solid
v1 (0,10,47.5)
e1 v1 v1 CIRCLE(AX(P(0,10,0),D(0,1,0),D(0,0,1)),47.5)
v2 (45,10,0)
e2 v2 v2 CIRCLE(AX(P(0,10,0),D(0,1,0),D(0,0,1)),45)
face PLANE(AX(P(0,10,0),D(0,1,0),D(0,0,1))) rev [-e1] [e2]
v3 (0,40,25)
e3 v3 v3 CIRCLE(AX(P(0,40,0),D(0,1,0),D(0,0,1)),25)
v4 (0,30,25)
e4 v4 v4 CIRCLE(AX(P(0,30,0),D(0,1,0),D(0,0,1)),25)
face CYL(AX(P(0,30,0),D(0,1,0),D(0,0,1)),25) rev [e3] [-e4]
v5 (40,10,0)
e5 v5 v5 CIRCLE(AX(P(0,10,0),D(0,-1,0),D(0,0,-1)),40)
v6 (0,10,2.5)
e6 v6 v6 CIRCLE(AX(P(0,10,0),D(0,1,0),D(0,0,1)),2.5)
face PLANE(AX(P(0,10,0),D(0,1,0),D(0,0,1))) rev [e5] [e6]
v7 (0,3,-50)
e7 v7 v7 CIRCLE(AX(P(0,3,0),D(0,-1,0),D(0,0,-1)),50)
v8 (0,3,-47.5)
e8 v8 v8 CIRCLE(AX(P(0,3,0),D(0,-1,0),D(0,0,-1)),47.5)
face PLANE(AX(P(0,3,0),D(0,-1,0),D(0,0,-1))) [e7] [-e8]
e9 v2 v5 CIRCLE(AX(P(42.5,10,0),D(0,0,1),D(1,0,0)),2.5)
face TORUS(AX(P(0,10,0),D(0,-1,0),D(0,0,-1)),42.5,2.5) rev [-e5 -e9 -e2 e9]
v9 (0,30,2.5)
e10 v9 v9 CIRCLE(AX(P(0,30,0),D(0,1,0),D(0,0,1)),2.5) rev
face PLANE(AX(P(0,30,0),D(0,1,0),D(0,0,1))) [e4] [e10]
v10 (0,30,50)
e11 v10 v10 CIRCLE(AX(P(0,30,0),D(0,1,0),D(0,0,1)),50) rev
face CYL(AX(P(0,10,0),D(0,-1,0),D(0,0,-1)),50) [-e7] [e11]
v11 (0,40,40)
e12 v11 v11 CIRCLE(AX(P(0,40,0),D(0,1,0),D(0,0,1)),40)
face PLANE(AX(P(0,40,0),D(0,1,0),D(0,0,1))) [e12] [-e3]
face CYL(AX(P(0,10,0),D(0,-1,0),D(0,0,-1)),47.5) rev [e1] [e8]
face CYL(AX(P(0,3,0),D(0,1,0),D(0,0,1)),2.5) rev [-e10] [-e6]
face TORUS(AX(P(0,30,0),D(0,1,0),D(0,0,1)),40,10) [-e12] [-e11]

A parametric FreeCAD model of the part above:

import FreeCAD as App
import Part
import Sketcher

V = App.Vector
Q = App.Units.Quantity


def edges_at(feature, points):
    """Names of the edges that pass closest to the given points."""
    edges = feature.Shape.Edges
    near = lambda p: min(range(len(edges)), key=lambda i: edges[i].distToShape(Part.Vertex(*p))[0])
    return sorted({f"Edge{near(p) + 1}" for p in points})

doc = App.newDocument("Part")
body = doc.addObject("PartDesign::Body", "Body")

# Sketch on XZ plane
sketch1 = body.newObject("Sketcher::SketchObject", "Sketch")
sketch1.AttachmentSupport = (doc.getObject("XZ_Plane"), [""])
sketch1.MapMode = "FlatFace"
sketch1.addGeometry(Part.Circle(V(0, 0, 0), V(0, 0, 1), 50), False)
sketch1.addGeometry(Part.Circle(V(0, 0, 0), V(0, 0, 1), 48), False)
sketch1.addConstraint(Sketcher.Constraint("Coincident", 0, 3, -1, 1))
sketch1.addConstraint(Sketcher.Constraint("Coincident", 1, 3, -1, 1))
sketch1.addConstraint(Sketcher.Constraint("Diameter", 0, Q("100 mm")))
sketch1.addConstraint(Sketcher.Constraint("Diameter", 1, Q("95 mm")))
pad1 = body.newObject("PartDesign::Pad", "Pad")
pad1.Profile = sketch1
pad1.Length = 10
pad1.Reversed = True

# Sketch on XZ plane
sketch2 = body.newObject("Sketcher::SketchObject", "Sketch001")
sketch2.AttachmentSupport = (doc.getObject("XZ_Plane"), [""])
sketch2.MapMode = "FlatFace"
sketch2.AttachmentOffset = App.Placement(V(0, 0, -10), App.Rotation())
sketch2.addGeometry(Part.Circle(V(0, 0, 0), V(0, 0, 1), 50), False)
sketch2.addConstraint(Sketcher.Constraint("Coincident", 0, 3, -1, 1))
sketch2.addConstraint(Sketcher.Constraint("Diameter", 0, Q("100 mm")))
pad2 = body.newObject("PartDesign::Pad", "Pad001")
pad2.Profile = sketch2
pad2.Length = 30
pad2.Reversed = True

# Sketch on XY plane
sketch3 = body.newObject("Sketcher::SketchObject", "Sketch002")
sketch3.AttachmentSupport = (doc.getObject("XY_Plane"), [""])
sketch3.MapMode = "FlatFace"
sketch3.addGeometry(Part.Circle(V(42.5, 10, 0), V(0, 0, 1), 2.5), False)
sketch3.addConstraint(Sketcher.Constraint("Diameter", 0, Q("5 mm")))
sketch3.addConstraint(Sketcher.Constraint("DistanceY", -1, 1, 0, 3, Q("10 mm")))
sketch3.addConstraint(Sketcher.Constraint("DistanceX", -1, 1, 0, 3, Q("42.5 mm")))

# Sketch on XZ plane
sketch4 = body.newObject("Sketcher::SketchObject", "Sketch003")
sketch4.AttachmentSupport = (doc.getObject("XZ_Plane"), [""])
sketch4.MapMode = "FlatFace"
sketch4.AttachmentOffset = App.Placement(V(0, 0, -10), App.Rotation())
sketch4.addGeometry(Part.Circle(V(0, 0, 0), V(0, 0, 1), 42), False)
sketch4.addConstraint(Sketcher.Constraint("Coincident", 0, 3, -1, 1))
sketch4.addConstraint(Sketcher.Constraint("Diameter", 0, Q("85 mm")))
doc.recompute()

subtractivepipe = body.newObject("PartDesign::SubtractivePipe", "SubtractivePipe")
subtractivepipe.Profile = sketch3
subtractivepipe.Spine = (sketch4, ["Edge1"])

# Sketch on XZ plane
sketch5 = body.newObject("Sketcher::SketchObject", "Sketch004")
sketch5.AttachmentSupport = (doc.getObject("XZ_Plane"), [""])
sketch5.MapMode = "FlatFace"
sketch5.addGeometry(Part.Circle(V(0, 0, 0), V(0, 0, 1), 50), False)
sketch5.addConstraint(Sketcher.Constraint("Coincident", 0, 3, -1, 1))
sketch5.addConstraint(Sketcher.Constraint("Diameter", 0, Q("100 mm")))
pocket1 = body.newObject("PartDesign::Pocket", "Pocket")
pocket1.Profile = sketch5
pocket1.Length = 3

# Sketch on XZ plane
sketch6 = body.newObject("Sketcher::SketchObject", "Sketch005")
sketch6.AttachmentSupport = (doc.getObject("XZ_Plane"), [""])
sketch6.MapMode = "FlatFace"
sketch6.AttachmentOffset = App.Placement(V(0, 0, -40), App.Rotation())
sketch6.addGeometry(Part.Circle(V(0, 0, 0), V(0, 0, 1), 2.5), False)
sketch6.addConstraint(Sketcher.Constraint("Coincident", 0, 3, -1, 1))
sketch6.addConstraint(Sketcher.Constraint("Diameter", 0, Q("5 mm")))
pocket2 = body.newObject("PartDesign::Pocket", "Pocket001")
pocket2.Profile = sketch6
pocket2.Type = "ThroughAll"
pocket2.Midplane = True
doc.recompute()

fillet = body.newObject("PartDesign::Fillet", "Fillet")
fillet.Base = (pocket2, edges_at(pocket2, [(0, 40, -50)]))
fillet.Radius = 10

# Sketch on XZ plane
sketch7 = body.newObject("Sketcher::SketchObject", "Sketch006")
sketch7.AttachmentSupport = (doc.getObject("XZ_Plane"), [""])
sketch7.MapMode = "FlatFace"
sketch7.AttachmentOffset = App.Placement(V(0, 0, -40), App.Rotation())
sketch7.addGeometry(Part.Circle(V(0, 0, 0), V(0, 0, 1), 25), False)
sketch7.addConstraint(Sketcher.Constraint("Coincident", 0, 3, -1, 1))
sketch7.addConstraint(Sketcher.Constraint("Diameter", 0, Q("50 mm")))
pocket3 = body.newObject("PartDesign::Pocket", "Pocket002")
pocket3.Profile = sketch7
pocket3.Length = 10
pocket3.Reversed = True

doc.recompute()
